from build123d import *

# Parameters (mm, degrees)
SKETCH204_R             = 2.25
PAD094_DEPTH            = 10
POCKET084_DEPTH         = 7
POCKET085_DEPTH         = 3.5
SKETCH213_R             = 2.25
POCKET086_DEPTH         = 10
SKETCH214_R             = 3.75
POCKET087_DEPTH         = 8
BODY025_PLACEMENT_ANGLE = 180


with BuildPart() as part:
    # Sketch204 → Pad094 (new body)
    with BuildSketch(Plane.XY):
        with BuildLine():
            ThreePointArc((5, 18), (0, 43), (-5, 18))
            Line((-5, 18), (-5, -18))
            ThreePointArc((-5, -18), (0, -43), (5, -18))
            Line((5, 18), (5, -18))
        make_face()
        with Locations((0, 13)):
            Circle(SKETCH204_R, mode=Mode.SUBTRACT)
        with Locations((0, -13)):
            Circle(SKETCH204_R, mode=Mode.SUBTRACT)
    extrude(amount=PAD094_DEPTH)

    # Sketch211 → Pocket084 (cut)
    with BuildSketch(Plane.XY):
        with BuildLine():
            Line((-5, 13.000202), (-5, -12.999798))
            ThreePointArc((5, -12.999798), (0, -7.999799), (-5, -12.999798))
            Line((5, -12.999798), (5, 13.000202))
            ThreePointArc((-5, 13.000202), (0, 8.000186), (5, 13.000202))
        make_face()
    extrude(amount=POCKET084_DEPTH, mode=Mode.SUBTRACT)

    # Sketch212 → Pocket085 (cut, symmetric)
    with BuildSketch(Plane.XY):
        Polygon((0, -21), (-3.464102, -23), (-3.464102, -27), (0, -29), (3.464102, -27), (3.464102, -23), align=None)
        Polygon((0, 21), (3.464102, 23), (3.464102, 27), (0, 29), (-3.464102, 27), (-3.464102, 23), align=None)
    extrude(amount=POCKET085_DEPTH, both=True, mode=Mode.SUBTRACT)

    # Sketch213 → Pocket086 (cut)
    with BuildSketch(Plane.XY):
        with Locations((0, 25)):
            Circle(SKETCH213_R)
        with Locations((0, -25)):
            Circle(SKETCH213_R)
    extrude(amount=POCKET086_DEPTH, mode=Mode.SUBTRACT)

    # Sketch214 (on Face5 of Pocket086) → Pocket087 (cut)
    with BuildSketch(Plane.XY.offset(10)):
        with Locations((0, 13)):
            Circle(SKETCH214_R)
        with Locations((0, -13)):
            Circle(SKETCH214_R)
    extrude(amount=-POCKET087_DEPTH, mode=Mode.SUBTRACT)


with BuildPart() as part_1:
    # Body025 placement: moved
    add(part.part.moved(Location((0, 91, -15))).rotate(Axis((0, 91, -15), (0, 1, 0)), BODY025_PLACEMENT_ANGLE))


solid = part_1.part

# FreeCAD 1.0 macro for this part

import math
import FreeCAD as App
import Part
import Sketcher
Q = App.Units.Quantity


def add_polygon(sketch, points):
    """Adds a closed chain of lines whose ends are joined by coincident constraints."""
    first, n = sketch.GeometryCount, len(points)
    for a, b in zip(points, points[1:] + points[:1]):
        sketch.addGeometry(Part.LineSegment(App.Vector(*a, 0), App.Vector(*b, 0)), False)
    for i in range(n):
        sketch.addConstraint(Sketcher.Constraint("Coincident", first + i, 2, first + (i + 1) % n, 1))

doc = App.newDocument("Part")
body = doc.addObject("PartDesign::Body", "Body")

# Sketch on XY plane
sketch1 = body.newObject("Sketcher::SketchObject", "Sketch")
sketch1.AttachmentSupport = (doc.getObject("XY_Plane"), [""])
sketch1.MapMode = "FlatFace"
sketch1.addGeometry(Part.ArcOfCircle(Part.Circle(App.Vector(0, 30, 0), App.Vector(0, 0, 1), 13), math.radians(-67), math.radians(247)), False)
sketch1.addGeometry(Part.LineSegment(App.Vector(-5, 18, 0), App.Vector(-5, -18, 0)), False)
sketch1.addGeometry(Part.ArcOfCircle(Part.Circle(App.Vector(0, -30, 0), App.Vector(0, 0, 1), 13), math.radians(113), math.radians(427)), False)
sketch1.addGeometry(Part.LineSegment(App.Vector(5, -18, 0), App.Vector(5, 18, 0)), False)
sketch1.addGeometry(Part.Circle(App.Vector(0, -13, 0), App.Vector(0, 0, 1), 2.2), False)
sketch1.addGeometry(Part.Circle(App.Vector(0, 13, 0), App.Vector(0, 0, 1), 2.2), False)
sketch1.addConstraint(Sketcher.Constraint("Coincident", 0, 2, 1, 1))
sketch1.addConstraint(Sketcher.Constraint("Coincident", 1, 2, 2, 1))
sketch1.addConstraint(Sketcher.Constraint("Coincident", 2, 2, 3, 1))
sketch1.addConstraint(Sketcher.Constraint("Coincident", 3, 2, 0, 1))
sketch1.addConstraint(Sketcher.Constraint("Vertical", 1))
sketch1.addConstraint(Sketcher.Constraint("Vertical", 3))
sketch1.addConstraint(Sketcher.Constraint("Equal", 0, 2))
sketch1.addConstraint(Sketcher.Constraint("Equal", 4, 5))
sketch1.addConstraint(Sketcher.Constraint("Symmetric", 0, 3, 2, 3, -1, 1))
sketch1.addConstraint(Sketcher.Constraint("Symmetric", 4, 3, 5, 3, -1, 1))
sketch1.addConstraint(Sketcher.Constraint("Symmetric", 1, 2, 2, 2, -2))
sketch1.addConstraint(Sketcher.Constraint("PointOnObject", 4, 3, -2))
sketch1.addConstraint(Sketcher.Constraint("Radius", 0, 13.0))
sketch1.addConstraint(Sketcher.Constraint("Diameter", 4, 4.5))
sketch1.addConstraint(Sketcher.Constraint("DistanceY", 1, 2, 1, 1, 36.0))
sketch1.addConstraint(Sketcher.Constraint("DistanceY", -1, 1, 0, 3, 30.0))
sketch1.addConstraint(Sketcher.Constraint("DistanceY", 4, 3, -1, 1, 13.0))
pad1 = body.newObject("PartDesign::Pad", "Pad")
pad1.Profile = sketch1
pad1.Length = 10

# Sketch on XY plane
sketch2 = body.newObject("Sketcher::SketchObject", "Sketch001")
sketch2.AttachmentSupport = (doc.getObject("XY_Plane"), [""])
sketch2.MapMode = "FlatFace"
sketch2.addGeometry(Part.LineSegment(App.Vector(-5, 13, 0), App.Vector(-5, -13, 0)), False)
sketch2.addGeometry(Part.ArcOfCircle(Part.Circle(App.Vector(0, -13, 0), App.Vector(0, 0, 1), 5), math.radians(0), math.radians(180)), False)
sketch2.addGeometry(Part.LineSegment(App.Vector(5, -13, 0), App.Vector(5, 13, 0)), False)
sketch2.addGeometry(Part.ArcOfCircle(Part.Circle(App.Vector(0, 13, 0), App.Vector(0, 0, 1), 5), math.radians(180), math.radians(360)), False)
sketch2.addConstraint(Sketcher.Constraint("Tangent", 0, 2, 1, 2))
sketch2.addConstraint(Sketcher.Constraint("Tangent", 1, 1, 2, 1))
sketch2.addConstraint(Sketcher.Constraint("Coincident", 2, 2, 3, 2))
sketch2.addConstraint(Sketcher.Constraint("Coincident", 3, 1, 0, 1))
sketch2.addConstraint(Sketcher.Constraint("Vertical", 0))
sketch2.addConstraint(Sketcher.Constraint("Vertical", 2))
sketch2.addConstraint(Sketcher.Constraint("Symmetric", 2, 2, 3, 1, -2))
sketch2.addConstraint(Sketcher.Constraint("Radius", 1, 5.0))
sketch2.addConstraint(Sketcher.Constraint("DistanceY", 0, 2, 0, 1, 26.0))
sketch2.addConstraint(Sketcher.Constraint("DistanceY", 1, 3, -1, 1, 12.999799))
sketch2.addConstraint(Sketcher.Constraint("DistanceY", -1, 1, 3, 3, 13.000186))
pocket1 = body.newObject("PartDesign::Pocket", "Pocket")
pocket1.Profile = sketch2
pocket1.Length = 7
pocket1.Reversed = True

# Sketch on XY plane
sketch3 = body.newObject("Sketcher::SketchObject", "Sketch002")
sketch3.AttachmentSupport = (doc.getObject("XY_Plane"), [""])
sketch3.MapMode = "FlatFace"
add_polygon(sketch3, [(0, -21), (-3.5, -23), (-3.5, -27), (0, -29), (3.5, -27), (3.5, -23)])  # lines 0-5
add_polygon(sketch3, [(0, 21), (3.5, 23), (3.5, 27), (0, 29), (-3.5, 27), (-3.5, 23)])  # lines 6-11
sketch3.addConstraint(Sketcher.Constraint("Vertical", 1))
sketch3.addConstraint(Sketcher.Constraint("Vertical", 4))
sketch3.addConstraint(Sketcher.Constraint("Vertical", 7))
sketch3.addConstraint(Sketcher.Constraint("Vertical", 10))
sketch3.addConstraint(Sketcher.Constraint("Symmetric", 0, 2, 6, 2, -1, 1))
sketch3.addConstraint(Sketcher.Constraint("Symmetric", 2, 2, 8, 2, -1, 1))
sketch3.addConstraint(Sketcher.Constraint("Symmetric", 3, 2, 9, 2, -1, 1))
sketch3.addConstraint(Sketcher.Constraint("Symmetric", 5, 2, 11, 2, -1, 1))
sketch3.addConstraint(Sketcher.Constraint("Symmetric", 1, 2, 3, 2, -2))
sketch3.addConstraint(Sketcher.Constraint("PointOnObject", 2, 2, -2))
sketch3.addConstraint(Sketcher.Constraint("PointOnObject", 5, 2, -2))
sketch3.addConstraint(Sketcher.Constraint("Parallel", 0, 3))
sketch3.addConstraint(Sketcher.Constraint("Parallel", 2, 5))
sketch3.addConstraint(Sketcher.Constraint("Parallel", 5, 8))
sketch3.addConstraint(Sketcher.Constraint("Parallel", 8, 11))
sketch3.addConstraint(Sketcher.Constraint("DistanceY", 1, 2, 1, 1, 4.0))
sketch3.addConstraint(Sketcher.Constraint("Angle", 0, Q("-150.000003 deg")))
sketch3.addConstraint(Sketcher.Constraint("Distance", 0, 4.0))
sketch3.addConstraint(Sketcher.Constraint("DistanceY", 0, 2, -1, 1, 23.0))
pocket2 = body.newObject("PartDesign::Pocket", "Pocket001")
pocket2.Profile = sketch3
pocket2.Length = 7
pocket2.Midplane = True

# Sketch on XY plane
sketch4 = body.newObject("Sketcher::SketchObject", "Sketch003")
sketch4.AttachmentSupport = (doc.getObject("XY_Plane"), [""])
sketch4.MapMode = "FlatFace"
sketch4.addGeometry(Part.Circle(App.Vector(0, 25, 0), App.Vector(0, 0, 1), 2.2), False)
sketch4.addGeometry(Part.Circle(App.Vector(0, -25, 0), App.Vector(0, 0, 1), 2.2), False)
sketch4.addConstraint(Sketcher.Constraint("Equal", 0, 1))
sketch4.addConstraint(Sketcher.Constraint("Symmetric", 0, 3, 1, 3, -1, 1))
sketch4.addConstraint(Sketcher.Constraint("PointOnObject", 0, 3, -2))
sketch4.addConstraint(Sketcher.Constraint("Diameter", 0, 4.5))
sketch4.addConstraint(Sketcher.Constraint("DistanceY", -1, 1, 0, 3, 25.0))
pocket3 = body.newObject("PartDesign::Pocket", "Pocket002")
pocket3.Profile = sketch4
pocket3.Length = 10
pocket3.Reversed = True

# Sketch on XY plane
sketch5 = body.newObject("Sketcher::SketchObject", "Sketch004")
sketch5.AttachmentSupport = (doc.getObject("XY_Plane"), [""])
sketch5.MapMode = "FlatFace"
sketch5.AttachmentOffset = App.Placement(App.Vector(0, 0, 10), App.Rotation())
sketch5.addGeometry(Part.Circle(App.Vector(0, 13, 0), App.Vector(0, 0, 1), 3.8), False)
sketch5.addGeometry(Part.Circle(App.Vector(0, -13, 0), App.Vector(0, 0, 1), 3.8), False)
sketch5.addConstraint(Sketcher.Constraint("Equal", 0, 1))
sketch5.addConstraint(Sketcher.Constraint("Symmetric", 0, 3, 1, 3, -1, 1))
sketch5.addConstraint(Sketcher.Constraint("PointOnObject", 0, 3, -2))
sketch5.addConstraint(Sketcher.Constraint("Diameter", 0, 7.5))
sketch5.addConstraint(Sketcher.Constraint("DistanceY", -1, 1, 0, 3, 13.0))
pocket4 = body.newObject("PartDesign::Pocket", "Pocket003")
pocket4.Profile = sketch5
pocket4.Length = 8
body2 = doc.addObject("PartDesign::Body", "Body001")
doc.recompute()

body.Placement = App.Placement(App.Vector(0, 91, -15), App.Rotation(App.Vector(0, 1, 0), 180))
boolean = body2.newObject("PartDesign::Boolean", "Boolean")
boolean.Type = "Fuse"
boolean.addObjects([body])

doc.recompute()
